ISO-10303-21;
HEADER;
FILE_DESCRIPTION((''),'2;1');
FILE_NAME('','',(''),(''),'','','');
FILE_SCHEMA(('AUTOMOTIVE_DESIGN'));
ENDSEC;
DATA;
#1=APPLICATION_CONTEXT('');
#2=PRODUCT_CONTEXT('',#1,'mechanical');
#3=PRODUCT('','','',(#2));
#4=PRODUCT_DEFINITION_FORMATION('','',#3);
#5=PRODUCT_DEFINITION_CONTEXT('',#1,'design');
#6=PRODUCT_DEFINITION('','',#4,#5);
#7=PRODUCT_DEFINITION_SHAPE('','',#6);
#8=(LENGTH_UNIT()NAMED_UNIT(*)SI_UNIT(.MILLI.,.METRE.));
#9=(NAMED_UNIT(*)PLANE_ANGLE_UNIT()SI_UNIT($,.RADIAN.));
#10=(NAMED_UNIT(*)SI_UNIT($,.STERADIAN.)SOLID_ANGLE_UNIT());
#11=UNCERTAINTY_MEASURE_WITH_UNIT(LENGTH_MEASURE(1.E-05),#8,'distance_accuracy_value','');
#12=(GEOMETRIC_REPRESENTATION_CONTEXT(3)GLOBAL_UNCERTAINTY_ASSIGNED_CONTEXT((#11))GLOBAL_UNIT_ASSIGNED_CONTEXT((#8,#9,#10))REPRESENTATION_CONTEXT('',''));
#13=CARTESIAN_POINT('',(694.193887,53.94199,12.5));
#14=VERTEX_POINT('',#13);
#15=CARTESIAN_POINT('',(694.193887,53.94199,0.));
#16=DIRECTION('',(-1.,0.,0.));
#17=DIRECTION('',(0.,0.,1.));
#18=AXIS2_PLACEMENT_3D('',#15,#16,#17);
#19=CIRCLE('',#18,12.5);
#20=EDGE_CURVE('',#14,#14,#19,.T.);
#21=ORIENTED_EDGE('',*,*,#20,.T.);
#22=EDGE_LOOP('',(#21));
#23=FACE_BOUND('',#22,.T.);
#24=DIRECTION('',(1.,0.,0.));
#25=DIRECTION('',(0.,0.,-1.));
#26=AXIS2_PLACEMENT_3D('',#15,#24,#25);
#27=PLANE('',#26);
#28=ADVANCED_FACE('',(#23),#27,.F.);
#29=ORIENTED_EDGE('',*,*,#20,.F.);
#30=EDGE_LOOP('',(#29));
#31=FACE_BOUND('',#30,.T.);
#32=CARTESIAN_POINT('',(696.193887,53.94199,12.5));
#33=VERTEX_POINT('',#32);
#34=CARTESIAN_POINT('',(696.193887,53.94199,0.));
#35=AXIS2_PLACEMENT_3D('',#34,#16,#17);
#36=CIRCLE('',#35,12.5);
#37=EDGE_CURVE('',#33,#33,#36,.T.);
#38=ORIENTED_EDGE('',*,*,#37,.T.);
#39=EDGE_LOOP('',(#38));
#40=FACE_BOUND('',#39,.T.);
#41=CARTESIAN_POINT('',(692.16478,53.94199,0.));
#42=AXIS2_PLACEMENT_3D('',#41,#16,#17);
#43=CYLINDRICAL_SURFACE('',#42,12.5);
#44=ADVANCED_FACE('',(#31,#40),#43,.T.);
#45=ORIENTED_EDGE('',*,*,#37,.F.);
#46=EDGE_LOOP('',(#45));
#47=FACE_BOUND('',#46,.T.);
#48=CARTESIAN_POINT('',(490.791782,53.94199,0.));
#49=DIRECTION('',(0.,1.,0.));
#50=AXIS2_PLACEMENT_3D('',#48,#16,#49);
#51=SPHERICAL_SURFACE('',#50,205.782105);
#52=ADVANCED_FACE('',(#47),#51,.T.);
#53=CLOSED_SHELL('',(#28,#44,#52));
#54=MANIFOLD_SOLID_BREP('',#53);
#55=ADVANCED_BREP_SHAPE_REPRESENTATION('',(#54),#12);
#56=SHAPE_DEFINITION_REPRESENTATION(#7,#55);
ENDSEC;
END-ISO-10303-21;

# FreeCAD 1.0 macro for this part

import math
import FreeCAD as App
import Part
import Sketcher

V = App.Vector

doc = App.newDocument("Part")
body = doc.addObject("PartDesign::Body", "Body")

# Sketch on XY plane
sketch1 = body.newObject("Sketcher::SketchObject", "Sketch")
sketch1.AttachmentSupport = (doc.getObject("XY_Plane"), [""])
sketch1.MapMode = "FlatFace"
sketch1.addGeometry([
    Part.LineSegment(V(694.193887, 66.44199, 0), V(694.193887, 53.94199, 0)),
    Part.LineSegment(V(694.193887, 53.94199, 0), V(696.573887, 53.94199, 0)),
    Part.ArcOfCircle(Part.Circle(V(490.791781, 53.94199, 0), V(0, 0, 1), 205.782106), math.radians(0), math.radians(3.482511)),
    Part.LineSegment(V(696.193887, 66.44199, 0), V(694.193887, 66.44199, 0)),
], False)
sketch1.addGeometry(Part.LineSegment(V(490.791781, 53.94199, 0), V(696.573887, 53.94199, 0)), True)  # axis
sketch1.addConstraint([
    Sketcher.Constraint("Coincident", 0, 2, 1, 1),
    Sketcher.Constraint("Coincident", 1, 2, 2, 1),
    Sketcher.Constraint("Coincident", 2, 2, 3, 1),
    Sketcher.Constraint("Coincident", 3, 2, 0, 1),
    Sketcher.Constraint("Vertical", 0),
    Sketcher.Constraint("Horizontal", 1),
    Sketcher.Constraint("Horizontal", 3),
    Sketcher.Constraint("Horizontal", 4),
    Sketcher.Constraint("Coincident", 4, 1, 2, 3),
    Sketcher.Constraint("Coincident", 4, 2, 1, 2),
    Sketcher.Constraint("DistanceX", 3, 2, 3, 1, 2.0),
    Sketcher.Constraint("DistanceY", 0, 2, 0, 1, 12.5),
    Sketcher.Constraint("Radius", 2, 205.782106),
    Sketcher.Constraint("DistanceX", -1, 1, 2, 3, 490.791781),
    Sketcher.Constraint("DistanceY", -1, 1, 2, 3, 53.94199),
])
revolution = body.newObject("PartDesign::Revolution", "Revolution")
revolution.Profile = sketch1
revolution.ReferenceAxis = (sketch1, ["Axis0"])
revolution.Angle = 360

doc.recompute()
